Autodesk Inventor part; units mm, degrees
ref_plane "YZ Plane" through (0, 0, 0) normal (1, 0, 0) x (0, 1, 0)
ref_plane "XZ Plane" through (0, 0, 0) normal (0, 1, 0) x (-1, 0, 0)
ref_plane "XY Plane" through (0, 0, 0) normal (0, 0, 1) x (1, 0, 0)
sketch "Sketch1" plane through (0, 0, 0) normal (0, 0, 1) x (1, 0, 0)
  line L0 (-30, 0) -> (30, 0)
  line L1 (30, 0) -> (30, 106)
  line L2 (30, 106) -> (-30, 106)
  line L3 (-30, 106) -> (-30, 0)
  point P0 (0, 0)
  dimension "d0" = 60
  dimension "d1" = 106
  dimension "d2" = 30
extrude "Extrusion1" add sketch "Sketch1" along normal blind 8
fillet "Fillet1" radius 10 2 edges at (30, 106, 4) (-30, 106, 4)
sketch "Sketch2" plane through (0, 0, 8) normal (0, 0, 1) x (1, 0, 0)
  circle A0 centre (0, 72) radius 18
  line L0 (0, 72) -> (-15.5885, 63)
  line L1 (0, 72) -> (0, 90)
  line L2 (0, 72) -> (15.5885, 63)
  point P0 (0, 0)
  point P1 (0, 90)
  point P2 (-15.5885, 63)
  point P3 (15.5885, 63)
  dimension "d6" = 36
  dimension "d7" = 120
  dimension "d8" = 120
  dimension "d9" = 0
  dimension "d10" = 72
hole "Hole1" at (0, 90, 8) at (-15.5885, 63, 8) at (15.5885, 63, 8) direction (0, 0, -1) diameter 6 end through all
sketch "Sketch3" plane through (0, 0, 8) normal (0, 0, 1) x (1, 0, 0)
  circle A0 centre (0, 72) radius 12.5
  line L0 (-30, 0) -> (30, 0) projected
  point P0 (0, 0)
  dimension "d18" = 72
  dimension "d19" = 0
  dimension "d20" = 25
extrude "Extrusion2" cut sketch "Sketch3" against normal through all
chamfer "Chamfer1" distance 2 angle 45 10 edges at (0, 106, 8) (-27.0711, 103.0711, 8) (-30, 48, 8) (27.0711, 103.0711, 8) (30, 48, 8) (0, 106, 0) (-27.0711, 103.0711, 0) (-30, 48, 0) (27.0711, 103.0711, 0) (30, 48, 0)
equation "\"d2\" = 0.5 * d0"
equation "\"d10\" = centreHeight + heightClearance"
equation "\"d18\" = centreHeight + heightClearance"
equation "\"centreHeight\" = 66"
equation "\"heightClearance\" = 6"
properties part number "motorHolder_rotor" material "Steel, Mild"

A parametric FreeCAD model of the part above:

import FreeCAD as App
import Part
import Sketcher

V = App.Vector


def edges_at(feature, points):
    """Names of the edges that pass closest to the given points."""
    edges = feature.Shape.Edges
    near = lambda p: min(range(len(edges)), key=lambda i: edges[i].distToShape(Part.Vertex(*p))[0])
    return sorted({f"Edge{near(p) + 1}" for p in points})

doc = App.newDocument("Part")
body = doc.addObject("PartDesign::Body", "Body")

sketch1 = body.newObject("Sketcher::SketchObject", "Sketch")
sketch1.AttachmentSupport = (doc.getObject("XY_Plane"), [""])
sketch1.MapMode = "FlatFace"
sketch1.addGeometry([
    Part.LineSegment(V(-30, 106, 0), V(-30, 0, 0)),
    Part.LineSegment(V(-30, 0, 0), V(30, 0, 0)),
    Part.LineSegment(V(30, 0, 0), V(30, 106, 0)),
    Part.LineSegment(V(30, 106, 0), V(-30, 106, 0)),
], False)
sketch1.addConstraint([
    Sketcher.Constraint("Coincident", 0, 2, 1, 1),
    Sketcher.Constraint("Coincident", 1, 2, 2, 1),
    Sketcher.Constraint("Coincident", 2, 2, 3, 1),
    Sketcher.Constraint("Coincident", 3, 2, 0, 1),
    Sketcher.Constraint("Vertical", 0),
    Sketcher.Constraint("Horizontal", 1),
    Sketcher.Constraint("Vertical", 2),
    Sketcher.Constraint("Horizontal", 3),
    Sketcher.Constraint("Symmetric", 0, 2, 1, 2, -1, 1),
    Sketcher.Constraint("DistanceX", 1, 1, 1, 2, 60.0),
    Sketcher.Constraint("DistanceY", 0, 2, 0, 1, 106.0),
])
pad1 = body.newObject("PartDesign::Pad", "Pad")
pad1.Profile = sketch1
pad1.Length = 8
doc.recompute()

fillet = body.newObject("PartDesign::Fillet", "Fillet")
fillet.Base = (pad1, edges_at(pad1, [(30, 106, 4), (-30, 106, 4)]))
fillet.Radius = 10

sketch2 = body.newObject("Sketcher::SketchObject", "Sketch001")
sketch2.AttachmentSupport = (doc.getObject("XY_Plane"), [""])
sketch2.MapMode = "FlatFace"
sketch2.AttachmentOffset = App.Placement(V(0, 0, 8), App.Rotation())
sketch2.addGeometry([
    Part.Circle(V(0, 90, 0), V(0, 0, 1), 3),
    Part.Circle(V(-15.5885, 63, 0), V(0, 0, 1), 3),
    Part.Circle(V(15.5885, 63, 0), V(0, 0, 1), 3),
], False)
sketch2.addConstraint([
    Sketcher.Constraint("Equal", 0, 1),
    Sketcher.Constraint("Equal", 1, 2),
    Sketcher.Constraint("Symmetric", 1, 3, 2, 3, -2),
    Sketcher.Constraint("PointOnObject", 0, 3, -2),
    Sketcher.Constraint("Diameter", 0, 6.0),
    Sketcher.Constraint("DistanceY", -1, 1, 0, 3, 90.0),
    Sketcher.Constraint("DistanceY", -1, 1, 1, 3, 63.0),
    Sketcher.Constraint("DistanceX", 1, 3, 2, 3, 31.177),
])
doc.recompute()
hole = body.newObject("PartDesign::Hole", "Hole")
hole.Profile = sketch2
hole.ThreadType = "None"
hole.Diameter = 6
hole.DepthType = "ThroughAll"

sketch3 = body.newObject("Sketcher::SketchObject", "Sketch002")
sketch3.AttachmentSupport = (doc.getObject("XY_Plane"), [""])
sketch3.MapMode = "FlatFace"
sketch3.AttachmentOffset = App.Placement(V(0, 0, 8), App.Rotation())
sketch3.addGeometry(Part.Circle(V(0, 72, 0), V(0, 0, 1), 12.5), False)
sketch3.addConstraint([
    Sketcher.Constraint("PointOnObject", 0, 3, -2),
    Sketcher.Constraint("Diameter", 0, 25.0),
    Sketcher.Constraint("DistanceY", -1, 1, 0, 3, 72.0),
])
pocket1 = body.newObject("PartDesign::Pocket", "Pocket")
pocket1.Profile = sketch3
pocket1.Type = "ThroughAll"
doc.recompute()

chamfer = body.newObject("PartDesign::Chamfer", "Chamfer")
chamfer.Base = (pocket1, edges_at(pocket1, [
    (0, 106, 8),
    (-27.071, 103.071, 8),
    (-30, 48, 8),
    (27.071, 103.071, 8),
    (30, 48, 8),
    (0, 106, 0),
    (-27.071, 103.071, 0),
    (-30, 48, 0),
    (27.071, 103.071, 0),
    (30, 48, 0),
]))
chamfer.Size = 2

doc.recompute()
